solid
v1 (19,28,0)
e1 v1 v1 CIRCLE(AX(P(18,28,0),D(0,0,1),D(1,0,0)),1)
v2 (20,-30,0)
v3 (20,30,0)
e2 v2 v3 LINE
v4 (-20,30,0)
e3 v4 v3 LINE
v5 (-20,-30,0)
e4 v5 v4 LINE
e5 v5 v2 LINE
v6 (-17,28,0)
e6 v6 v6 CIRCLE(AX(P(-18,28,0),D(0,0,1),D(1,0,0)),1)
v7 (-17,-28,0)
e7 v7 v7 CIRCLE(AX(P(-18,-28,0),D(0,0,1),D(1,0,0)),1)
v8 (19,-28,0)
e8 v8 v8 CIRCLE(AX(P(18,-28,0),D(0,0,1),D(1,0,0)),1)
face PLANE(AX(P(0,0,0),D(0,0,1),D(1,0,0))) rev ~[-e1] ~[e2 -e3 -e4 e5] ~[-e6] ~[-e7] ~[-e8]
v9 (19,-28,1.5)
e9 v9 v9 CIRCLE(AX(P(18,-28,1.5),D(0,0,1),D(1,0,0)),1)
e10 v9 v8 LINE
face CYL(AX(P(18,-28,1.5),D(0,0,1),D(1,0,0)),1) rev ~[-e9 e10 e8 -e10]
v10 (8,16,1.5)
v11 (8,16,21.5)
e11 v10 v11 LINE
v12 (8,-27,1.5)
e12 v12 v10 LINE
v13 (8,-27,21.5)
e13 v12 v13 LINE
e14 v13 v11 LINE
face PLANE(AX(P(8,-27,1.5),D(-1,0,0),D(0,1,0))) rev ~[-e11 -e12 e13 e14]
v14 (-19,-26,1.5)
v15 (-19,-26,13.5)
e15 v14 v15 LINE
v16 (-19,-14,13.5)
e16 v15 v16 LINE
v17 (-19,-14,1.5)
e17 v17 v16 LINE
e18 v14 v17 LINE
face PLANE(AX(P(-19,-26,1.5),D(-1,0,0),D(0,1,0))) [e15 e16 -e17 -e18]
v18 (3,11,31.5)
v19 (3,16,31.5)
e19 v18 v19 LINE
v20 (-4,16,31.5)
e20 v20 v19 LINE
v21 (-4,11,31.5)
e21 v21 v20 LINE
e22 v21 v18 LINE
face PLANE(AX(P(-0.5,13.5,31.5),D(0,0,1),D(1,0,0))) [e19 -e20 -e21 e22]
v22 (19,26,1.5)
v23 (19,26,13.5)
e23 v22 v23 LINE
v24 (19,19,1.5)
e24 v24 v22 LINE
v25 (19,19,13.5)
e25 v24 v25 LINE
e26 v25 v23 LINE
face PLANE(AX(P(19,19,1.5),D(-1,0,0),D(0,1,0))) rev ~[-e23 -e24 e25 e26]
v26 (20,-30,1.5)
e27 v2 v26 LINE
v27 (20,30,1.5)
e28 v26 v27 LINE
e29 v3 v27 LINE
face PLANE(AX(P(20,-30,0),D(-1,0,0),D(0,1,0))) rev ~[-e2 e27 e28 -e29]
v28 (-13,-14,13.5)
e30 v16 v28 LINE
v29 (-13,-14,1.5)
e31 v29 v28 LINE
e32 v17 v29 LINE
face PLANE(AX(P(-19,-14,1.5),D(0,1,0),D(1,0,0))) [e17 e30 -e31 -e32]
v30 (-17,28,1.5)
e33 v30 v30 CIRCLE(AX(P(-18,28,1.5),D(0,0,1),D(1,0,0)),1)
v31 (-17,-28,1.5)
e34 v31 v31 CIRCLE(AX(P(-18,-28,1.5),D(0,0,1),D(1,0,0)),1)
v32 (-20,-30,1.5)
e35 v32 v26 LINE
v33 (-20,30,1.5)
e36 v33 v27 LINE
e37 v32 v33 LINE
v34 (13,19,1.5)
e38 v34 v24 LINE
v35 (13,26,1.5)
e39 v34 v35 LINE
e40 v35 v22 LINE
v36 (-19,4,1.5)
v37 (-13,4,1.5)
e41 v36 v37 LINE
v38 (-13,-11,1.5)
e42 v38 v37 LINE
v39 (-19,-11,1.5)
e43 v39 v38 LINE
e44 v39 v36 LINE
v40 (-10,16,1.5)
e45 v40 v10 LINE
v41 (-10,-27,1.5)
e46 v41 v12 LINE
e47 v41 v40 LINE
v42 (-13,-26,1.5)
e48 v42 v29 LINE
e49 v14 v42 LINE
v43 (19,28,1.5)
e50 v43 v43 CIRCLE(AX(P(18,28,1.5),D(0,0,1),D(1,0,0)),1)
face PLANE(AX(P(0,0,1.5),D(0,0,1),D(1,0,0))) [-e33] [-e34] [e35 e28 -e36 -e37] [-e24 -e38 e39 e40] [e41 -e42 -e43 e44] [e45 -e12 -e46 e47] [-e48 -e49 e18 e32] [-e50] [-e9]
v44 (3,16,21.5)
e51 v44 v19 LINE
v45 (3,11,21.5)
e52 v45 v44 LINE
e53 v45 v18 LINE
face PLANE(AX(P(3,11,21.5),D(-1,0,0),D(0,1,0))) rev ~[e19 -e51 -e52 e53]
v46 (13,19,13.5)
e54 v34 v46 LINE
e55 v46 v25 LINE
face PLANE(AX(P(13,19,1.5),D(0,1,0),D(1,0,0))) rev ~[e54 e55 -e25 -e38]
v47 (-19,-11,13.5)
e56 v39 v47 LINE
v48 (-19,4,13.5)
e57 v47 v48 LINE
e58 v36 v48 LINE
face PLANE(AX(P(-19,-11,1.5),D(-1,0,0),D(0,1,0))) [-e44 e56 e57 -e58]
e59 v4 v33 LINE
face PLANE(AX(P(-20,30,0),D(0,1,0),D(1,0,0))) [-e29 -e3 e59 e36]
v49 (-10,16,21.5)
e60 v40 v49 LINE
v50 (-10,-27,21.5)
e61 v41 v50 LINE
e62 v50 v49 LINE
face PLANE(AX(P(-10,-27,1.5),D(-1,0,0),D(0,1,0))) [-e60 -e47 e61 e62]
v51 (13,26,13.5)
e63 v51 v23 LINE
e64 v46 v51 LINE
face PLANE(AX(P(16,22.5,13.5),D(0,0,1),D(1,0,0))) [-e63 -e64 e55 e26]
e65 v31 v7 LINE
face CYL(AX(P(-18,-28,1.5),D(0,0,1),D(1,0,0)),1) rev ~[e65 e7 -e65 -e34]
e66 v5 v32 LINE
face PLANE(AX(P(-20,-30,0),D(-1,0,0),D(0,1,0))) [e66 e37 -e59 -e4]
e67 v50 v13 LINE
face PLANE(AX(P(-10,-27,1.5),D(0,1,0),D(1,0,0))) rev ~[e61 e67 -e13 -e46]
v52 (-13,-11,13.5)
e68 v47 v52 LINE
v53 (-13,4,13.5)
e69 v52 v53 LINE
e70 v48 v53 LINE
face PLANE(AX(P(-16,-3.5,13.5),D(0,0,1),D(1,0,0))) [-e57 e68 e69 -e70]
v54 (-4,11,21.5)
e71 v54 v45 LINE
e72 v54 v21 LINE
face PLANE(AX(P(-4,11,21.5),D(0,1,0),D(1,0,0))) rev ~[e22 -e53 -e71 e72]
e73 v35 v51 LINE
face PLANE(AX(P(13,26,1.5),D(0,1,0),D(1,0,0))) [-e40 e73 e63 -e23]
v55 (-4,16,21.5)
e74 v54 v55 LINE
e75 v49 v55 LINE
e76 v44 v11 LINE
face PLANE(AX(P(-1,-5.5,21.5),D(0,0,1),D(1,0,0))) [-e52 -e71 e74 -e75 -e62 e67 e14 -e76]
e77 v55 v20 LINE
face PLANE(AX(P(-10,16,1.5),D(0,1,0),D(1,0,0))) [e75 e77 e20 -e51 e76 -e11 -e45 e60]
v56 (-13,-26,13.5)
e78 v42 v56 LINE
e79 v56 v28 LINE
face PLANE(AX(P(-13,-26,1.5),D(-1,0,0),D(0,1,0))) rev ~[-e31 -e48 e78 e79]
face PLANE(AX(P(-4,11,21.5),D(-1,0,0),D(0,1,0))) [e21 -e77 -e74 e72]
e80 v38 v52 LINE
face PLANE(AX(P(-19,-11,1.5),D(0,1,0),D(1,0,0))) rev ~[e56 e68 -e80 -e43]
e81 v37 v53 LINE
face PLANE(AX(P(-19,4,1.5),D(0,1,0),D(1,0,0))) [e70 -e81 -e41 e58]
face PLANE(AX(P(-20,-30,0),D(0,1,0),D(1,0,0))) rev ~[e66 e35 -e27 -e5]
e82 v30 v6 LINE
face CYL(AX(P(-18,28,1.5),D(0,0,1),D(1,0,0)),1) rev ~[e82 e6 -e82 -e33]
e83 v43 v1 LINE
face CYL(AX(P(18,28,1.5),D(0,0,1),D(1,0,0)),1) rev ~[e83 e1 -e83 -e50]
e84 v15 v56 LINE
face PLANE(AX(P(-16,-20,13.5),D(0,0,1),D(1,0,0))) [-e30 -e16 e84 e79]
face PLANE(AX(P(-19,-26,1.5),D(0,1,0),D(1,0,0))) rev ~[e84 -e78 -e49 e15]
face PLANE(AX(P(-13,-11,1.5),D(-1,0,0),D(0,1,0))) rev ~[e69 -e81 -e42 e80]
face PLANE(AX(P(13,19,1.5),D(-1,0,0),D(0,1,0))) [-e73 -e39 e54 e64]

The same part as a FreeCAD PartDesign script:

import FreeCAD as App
import Part
import Sketcher

V = App.Vector

doc = App.newDocument("Part")
body = doc.addObject("PartDesign::Body", "Body")

# Sketch on XY plane
sketch1 = body.newObject("Sketcher::SketchObject", "Sketch")
sketch1.AttachmentSupport = (doc.getObject("XY_Plane"), [""])
sketch1.MapMode = "FlatFace"
sketch1.addGeometry([
    Part.LineSegment(V(-20, 30, 0), V(-20, -30, 0)),
    Part.LineSegment(V(-20, -30, 0), V(20, -30, 0)),
    Part.LineSegment(V(20, -30, 0), V(20, 30, 0)),
    Part.LineSegment(V(20, 30, 0), V(-20, 30, 0)),
], False)
sketch1.addConstraint([
    Sketcher.Constraint("Coincident", 0, 2, 1, 1),
    Sketcher.Constraint("Coincident", 1, 2, 2, 1),
    Sketcher.Constraint("Coincident", 2, 2, 3, 1),
    Sketcher.Constraint("Coincident", 3, 2, 0, 1),
    Sketcher.Constraint("Vertical", 0),
    Sketcher.Constraint("Horizontal", 1),
    Sketcher.Constraint("Vertical", 2),
    Sketcher.Constraint("Horizontal", 3),
    Sketcher.Constraint("Symmetric", 0, 2, 2, 2, -1, 1),
    Sketcher.Constraint("DistanceX", 1, 1, 1, 2, 40.0),
    Sketcher.Constraint("DistanceY", 0, 2, 0, 1, 60.0),
])
pad1 = body.newObject("PartDesign::Pad", "Pad")
pad1.Profile = sketch1
pad1.Length = 1.5

# Sketch on XY plane
sketch2 = body.newObject("Sketcher::SketchObject", "Sketch001")
sketch2.AttachmentSupport = (doc.getObject("XY_Plane"), [""])
sketch2.MapMode = "FlatFace"
sketch2.AttachmentOffset = App.Placement(V(0, 0, 1.5), App.Rotation())
sketch2.addGeometry([
    Part.Circle(V(-18, 28, 0), V(0, 0, 1), 1),
    Part.Circle(V(18, 28, 0), V(0, 0, 1), 1),
    Part.Circle(V(-18, -28, 0), V(0, 0, 1), 1),
    Part.Circle(V(18, -28, 0), V(0, 0, 1), 1),
], False)
sketch2.addConstraint([
    Sketcher.Constraint("Equal", 0, 1),
    Sketcher.Constraint("Equal", 1, 2),
    Sketcher.Constraint("Equal", 2, 3),
    Sketcher.Constraint("Symmetric", 1, 3, 2, 3, -1, 1),
    Sketcher.Constraint("Symmetric", 0, 3, 3, 3, -1, 1),
    Sketcher.Constraint("Symmetric", 0, 3, 1, 3, -2),
    Sketcher.Constraint("Diameter", 0, 2.0),
    Sketcher.Constraint("DistanceX", 0, 3, -1, 1, 18.0),
    Sketcher.Constraint("DistanceY", -1, 1, 0, 3, 28.0),
])
pocket1 = body.newObject("PartDesign::Pocket", "Pocket")
pocket1.Profile = sketch2
pocket1.Type = "ThroughAll"

# Sketch on XY plane
sketch3 = body.newObject("Sketcher::SketchObject", "Sketch002")
sketch3.AttachmentSupport = (doc.getObject("XY_Plane"), [""])
sketch3.MapMode = "FlatFace"
sketch3.AttachmentOffset = App.Placement(V(0, 0, 1.5), App.Rotation())
sketch3.addGeometry([
    Part.LineSegment(V(-10, 16, 0), V(-10, -27, 0)),
    Part.LineSegment(V(-10, -27, 0), V(8, -27, 0)),
    Part.LineSegment(V(8, -27, 0), V(8, 16, 0)),
    Part.LineSegment(V(8, 16, 0), V(-10, 16, 0)),
], False)
sketch3.addConstraint([
    Sketcher.Constraint("Coincident", 0, 2, 1, 1),
    Sketcher.Constraint("Coincident", 1, 2, 2, 1),
    Sketcher.Constraint("Coincident", 2, 2, 3, 1),
    Sketcher.Constraint("Coincident", 3, 2, 0, 1),
    Sketcher.Constraint("Vertical", 0),
    Sketcher.Constraint("Horizontal", 1),
    Sketcher.Constraint("Vertical", 2),
    Sketcher.Constraint("Horizontal", 3),
    Sketcher.Constraint("DistanceX", 1, 1, 1, 2, 18.0),
    Sketcher.Constraint("DistanceY", 0, 2, 0, 1, 43.0),
    Sketcher.Constraint("DistanceX", 0, 2, -1, 1, 10.0),
    Sketcher.Constraint("DistanceY", 0, 2, -1, 1, 27.0),
])
pad2 = body.newObject("PartDesign::Pad", "Pad001")
pad2.Profile = sketch3
pad2.Length = 20

# Sketch on XY plane
sketch4 = body.newObject("Sketcher::SketchObject", "Sketch003")
sketch4.AttachmentSupport = (doc.getObject("XY_Plane"), [""])
sketch4.MapMode = "FlatFace"
sketch4.AttachmentOffset = App.Placement(V(0, 0, 21.5), App.Rotation())
sketch4.addGeometry([
    Part.LineSegment(V(-4, 16, 0), V(-4, 11, 0)),
    Part.LineSegment(V(-4, 11, 0), V(3, 11, 0)),
    Part.LineSegment(V(3, 11, 0), V(3, 16, 0)),
    Part.LineSegment(V(3, 16, 0), V(-4, 16, 0)),
], False)
sketch4.addConstraint([
    Sketcher.Constraint("Coincident", 0, 2, 1, 1),
    Sketcher.Constraint("Coincident", 1, 2, 2, 1),
    Sketcher.Constraint("Coincident", 2, 2, 3, 1),
    Sketcher.Constraint("Coincident", 3, 2, 0, 1),
    Sketcher.Constraint("Vertical", 0),
    Sketcher.Constraint("Horizontal", 1),
    Sketcher.Constraint("Vertical", 2),
    Sketcher.Constraint("Horizontal", 3),
    Sketcher.Constraint("DistanceX", 1, 1, 1, 2, 7.0),
    Sketcher.Constraint("DistanceY", 0, 2, 0, 1, 5.0),
    Sketcher.Constraint("DistanceX", 0, 2, -1, 1, 4.0),
    Sketcher.Constraint("DistanceY", -1, 1, 0, 2, 11.0),
])
pad3 = body.newObject("PartDesign::Pad", "Pad002")
pad3.Profile = sketch4
pad3.Length = 10

# Sketch on XY plane
sketch5 = body.newObject("Sketcher::SketchObject", "Sketch004")
sketch5.AttachmentSupport = (doc.getObject("XY_Plane"), [""])
sketch5.MapMode = "FlatFace"
sketch5.AttachmentOffset = App.Placement(V(0, 0, 1.5), App.Rotation())
sketch5.addGeometry([
    Part.LineSegment(V(-19, -14, 0), V(-19, -26, 0)),  # 0
    Part.LineSegment(V(-19, -26, 0), V(-13, -26, 0)),  # 1
    Part.LineSegment(V(-13, -26, 0), V(-13, -14, 0)),  # 2
    Part.LineSegment(V(-13, -14, 0), V(-19, -14, 0)),  # 3
    Part.LineSegment(V(-19, 4, 0), V(-19, -11, 0)),  # 4
    Part.LineSegment(V(-19, -11, 0), V(-13, -11, 0)),  # 5
    Part.LineSegment(V(-13, -11, 0), V(-13, 4, 0)),  # 6
    Part.LineSegment(V(-13, 4, 0), V(-19, 4, 0)),  # 7
    Part.LineSegment(V(13, 26, 0), V(13, 19, 0)),  # 8
    Part.LineSegment(V(13, 19, 0), V(19, 19, 0)),  # 9
    Part.LineSegment(V(19, 19, 0), V(19, 26, 0)),  # 10
    Part.LineSegment(V(19, 26, 0), V(13, 26, 0)),  # 11
], False)
sketch5.addConstraint([
    Sketcher.Constraint("Coincident", 0, 2, 1, 1),
    Sketcher.Constraint("Coincident", 1, 2, 2, 1),
    Sketcher.Constraint("Coincident", 2, 2, 3, 1),
    Sketcher.Constraint("Coincident", 3, 2, 0, 1),
    Sketcher.Constraint("Coincident", 4, 2, 5, 1),
    Sketcher.Constraint("Coincident", 5, 2, 6, 1),
    Sketcher.Constraint("Coincident", 6, 2, 7, 1),
    Sketcher.Constraint("Coincident", 7, 2, 4, 1),
    Sketcher.Constraint("Coincident", 8, 2, 9, 1),
    Sketcher.Constraint("Coincident", 9, 2, 10, 1),
    Sketcher.Constraint("Coincident", 10, 2, 11, 1),
    Sketcher.Constraint("Coincident", 11, 2, 8, 1),
    Sketcher.Constraint("Vertical", 0),
    Sketcher.Constraint("Horizontal", 1),
    Sketcher.Constraint("Vertical", 2),
    Sketcher.Constraint("Horizontal", 3),
    Sketcher.Constraint("Vertical", 4),
    Sketcher.Constraint("Horizontal", 5),
    Sketcher.Constraint("Vertical", 6),
    Sketcher.Constraint("Horizontal", 7),
    Sketcher.Constraint("Vertical", 8),
    Sketcher.Constraint("Horizontal", 9),
    Sketcher.Constraint("Vertical", 10),
    Sketcher.Constraint("Horizontal", 11),
    Sketcher.Constraint("Symmetric", 0, 2, 10, 2, -1, 1),
    Sketcher.Constraint("Vertical", 3, 2, 4, 2),
    Sketcher.Constraint("Vertical", 2, 2, 5, 2),
    Sketcher.Constraint("Equal", 7, 9),
    Sketcher.Constraint("DistanceX", 1, 1, 1, 2, 6.0),
    Sketcher.Constraint("DistanceY", 0, 2, 0, 1, 12.0),
    Sketcher.Constraint("DistanceY", 4, 2, 4, 1, 15.0),
    Sketcher.Constraint("DistanceY", 8, 2, 8, 1, 7.0),
    Sketcher.Constraint("DistanceX", 0, 2, -1, 1, 19.0),
    Sketcher.Constraint("DistanceY", 0, 2, -1, 1, 26.0),
    Sketcher.Constraint("DistanceY", 4, 2, -1, 1, 11.0),
])
pad4 = body.newObject("PartDesign::Pad", "Pad003")
pad4.Profile = sketch5
pad4.Length = 12

doc.recompute()
